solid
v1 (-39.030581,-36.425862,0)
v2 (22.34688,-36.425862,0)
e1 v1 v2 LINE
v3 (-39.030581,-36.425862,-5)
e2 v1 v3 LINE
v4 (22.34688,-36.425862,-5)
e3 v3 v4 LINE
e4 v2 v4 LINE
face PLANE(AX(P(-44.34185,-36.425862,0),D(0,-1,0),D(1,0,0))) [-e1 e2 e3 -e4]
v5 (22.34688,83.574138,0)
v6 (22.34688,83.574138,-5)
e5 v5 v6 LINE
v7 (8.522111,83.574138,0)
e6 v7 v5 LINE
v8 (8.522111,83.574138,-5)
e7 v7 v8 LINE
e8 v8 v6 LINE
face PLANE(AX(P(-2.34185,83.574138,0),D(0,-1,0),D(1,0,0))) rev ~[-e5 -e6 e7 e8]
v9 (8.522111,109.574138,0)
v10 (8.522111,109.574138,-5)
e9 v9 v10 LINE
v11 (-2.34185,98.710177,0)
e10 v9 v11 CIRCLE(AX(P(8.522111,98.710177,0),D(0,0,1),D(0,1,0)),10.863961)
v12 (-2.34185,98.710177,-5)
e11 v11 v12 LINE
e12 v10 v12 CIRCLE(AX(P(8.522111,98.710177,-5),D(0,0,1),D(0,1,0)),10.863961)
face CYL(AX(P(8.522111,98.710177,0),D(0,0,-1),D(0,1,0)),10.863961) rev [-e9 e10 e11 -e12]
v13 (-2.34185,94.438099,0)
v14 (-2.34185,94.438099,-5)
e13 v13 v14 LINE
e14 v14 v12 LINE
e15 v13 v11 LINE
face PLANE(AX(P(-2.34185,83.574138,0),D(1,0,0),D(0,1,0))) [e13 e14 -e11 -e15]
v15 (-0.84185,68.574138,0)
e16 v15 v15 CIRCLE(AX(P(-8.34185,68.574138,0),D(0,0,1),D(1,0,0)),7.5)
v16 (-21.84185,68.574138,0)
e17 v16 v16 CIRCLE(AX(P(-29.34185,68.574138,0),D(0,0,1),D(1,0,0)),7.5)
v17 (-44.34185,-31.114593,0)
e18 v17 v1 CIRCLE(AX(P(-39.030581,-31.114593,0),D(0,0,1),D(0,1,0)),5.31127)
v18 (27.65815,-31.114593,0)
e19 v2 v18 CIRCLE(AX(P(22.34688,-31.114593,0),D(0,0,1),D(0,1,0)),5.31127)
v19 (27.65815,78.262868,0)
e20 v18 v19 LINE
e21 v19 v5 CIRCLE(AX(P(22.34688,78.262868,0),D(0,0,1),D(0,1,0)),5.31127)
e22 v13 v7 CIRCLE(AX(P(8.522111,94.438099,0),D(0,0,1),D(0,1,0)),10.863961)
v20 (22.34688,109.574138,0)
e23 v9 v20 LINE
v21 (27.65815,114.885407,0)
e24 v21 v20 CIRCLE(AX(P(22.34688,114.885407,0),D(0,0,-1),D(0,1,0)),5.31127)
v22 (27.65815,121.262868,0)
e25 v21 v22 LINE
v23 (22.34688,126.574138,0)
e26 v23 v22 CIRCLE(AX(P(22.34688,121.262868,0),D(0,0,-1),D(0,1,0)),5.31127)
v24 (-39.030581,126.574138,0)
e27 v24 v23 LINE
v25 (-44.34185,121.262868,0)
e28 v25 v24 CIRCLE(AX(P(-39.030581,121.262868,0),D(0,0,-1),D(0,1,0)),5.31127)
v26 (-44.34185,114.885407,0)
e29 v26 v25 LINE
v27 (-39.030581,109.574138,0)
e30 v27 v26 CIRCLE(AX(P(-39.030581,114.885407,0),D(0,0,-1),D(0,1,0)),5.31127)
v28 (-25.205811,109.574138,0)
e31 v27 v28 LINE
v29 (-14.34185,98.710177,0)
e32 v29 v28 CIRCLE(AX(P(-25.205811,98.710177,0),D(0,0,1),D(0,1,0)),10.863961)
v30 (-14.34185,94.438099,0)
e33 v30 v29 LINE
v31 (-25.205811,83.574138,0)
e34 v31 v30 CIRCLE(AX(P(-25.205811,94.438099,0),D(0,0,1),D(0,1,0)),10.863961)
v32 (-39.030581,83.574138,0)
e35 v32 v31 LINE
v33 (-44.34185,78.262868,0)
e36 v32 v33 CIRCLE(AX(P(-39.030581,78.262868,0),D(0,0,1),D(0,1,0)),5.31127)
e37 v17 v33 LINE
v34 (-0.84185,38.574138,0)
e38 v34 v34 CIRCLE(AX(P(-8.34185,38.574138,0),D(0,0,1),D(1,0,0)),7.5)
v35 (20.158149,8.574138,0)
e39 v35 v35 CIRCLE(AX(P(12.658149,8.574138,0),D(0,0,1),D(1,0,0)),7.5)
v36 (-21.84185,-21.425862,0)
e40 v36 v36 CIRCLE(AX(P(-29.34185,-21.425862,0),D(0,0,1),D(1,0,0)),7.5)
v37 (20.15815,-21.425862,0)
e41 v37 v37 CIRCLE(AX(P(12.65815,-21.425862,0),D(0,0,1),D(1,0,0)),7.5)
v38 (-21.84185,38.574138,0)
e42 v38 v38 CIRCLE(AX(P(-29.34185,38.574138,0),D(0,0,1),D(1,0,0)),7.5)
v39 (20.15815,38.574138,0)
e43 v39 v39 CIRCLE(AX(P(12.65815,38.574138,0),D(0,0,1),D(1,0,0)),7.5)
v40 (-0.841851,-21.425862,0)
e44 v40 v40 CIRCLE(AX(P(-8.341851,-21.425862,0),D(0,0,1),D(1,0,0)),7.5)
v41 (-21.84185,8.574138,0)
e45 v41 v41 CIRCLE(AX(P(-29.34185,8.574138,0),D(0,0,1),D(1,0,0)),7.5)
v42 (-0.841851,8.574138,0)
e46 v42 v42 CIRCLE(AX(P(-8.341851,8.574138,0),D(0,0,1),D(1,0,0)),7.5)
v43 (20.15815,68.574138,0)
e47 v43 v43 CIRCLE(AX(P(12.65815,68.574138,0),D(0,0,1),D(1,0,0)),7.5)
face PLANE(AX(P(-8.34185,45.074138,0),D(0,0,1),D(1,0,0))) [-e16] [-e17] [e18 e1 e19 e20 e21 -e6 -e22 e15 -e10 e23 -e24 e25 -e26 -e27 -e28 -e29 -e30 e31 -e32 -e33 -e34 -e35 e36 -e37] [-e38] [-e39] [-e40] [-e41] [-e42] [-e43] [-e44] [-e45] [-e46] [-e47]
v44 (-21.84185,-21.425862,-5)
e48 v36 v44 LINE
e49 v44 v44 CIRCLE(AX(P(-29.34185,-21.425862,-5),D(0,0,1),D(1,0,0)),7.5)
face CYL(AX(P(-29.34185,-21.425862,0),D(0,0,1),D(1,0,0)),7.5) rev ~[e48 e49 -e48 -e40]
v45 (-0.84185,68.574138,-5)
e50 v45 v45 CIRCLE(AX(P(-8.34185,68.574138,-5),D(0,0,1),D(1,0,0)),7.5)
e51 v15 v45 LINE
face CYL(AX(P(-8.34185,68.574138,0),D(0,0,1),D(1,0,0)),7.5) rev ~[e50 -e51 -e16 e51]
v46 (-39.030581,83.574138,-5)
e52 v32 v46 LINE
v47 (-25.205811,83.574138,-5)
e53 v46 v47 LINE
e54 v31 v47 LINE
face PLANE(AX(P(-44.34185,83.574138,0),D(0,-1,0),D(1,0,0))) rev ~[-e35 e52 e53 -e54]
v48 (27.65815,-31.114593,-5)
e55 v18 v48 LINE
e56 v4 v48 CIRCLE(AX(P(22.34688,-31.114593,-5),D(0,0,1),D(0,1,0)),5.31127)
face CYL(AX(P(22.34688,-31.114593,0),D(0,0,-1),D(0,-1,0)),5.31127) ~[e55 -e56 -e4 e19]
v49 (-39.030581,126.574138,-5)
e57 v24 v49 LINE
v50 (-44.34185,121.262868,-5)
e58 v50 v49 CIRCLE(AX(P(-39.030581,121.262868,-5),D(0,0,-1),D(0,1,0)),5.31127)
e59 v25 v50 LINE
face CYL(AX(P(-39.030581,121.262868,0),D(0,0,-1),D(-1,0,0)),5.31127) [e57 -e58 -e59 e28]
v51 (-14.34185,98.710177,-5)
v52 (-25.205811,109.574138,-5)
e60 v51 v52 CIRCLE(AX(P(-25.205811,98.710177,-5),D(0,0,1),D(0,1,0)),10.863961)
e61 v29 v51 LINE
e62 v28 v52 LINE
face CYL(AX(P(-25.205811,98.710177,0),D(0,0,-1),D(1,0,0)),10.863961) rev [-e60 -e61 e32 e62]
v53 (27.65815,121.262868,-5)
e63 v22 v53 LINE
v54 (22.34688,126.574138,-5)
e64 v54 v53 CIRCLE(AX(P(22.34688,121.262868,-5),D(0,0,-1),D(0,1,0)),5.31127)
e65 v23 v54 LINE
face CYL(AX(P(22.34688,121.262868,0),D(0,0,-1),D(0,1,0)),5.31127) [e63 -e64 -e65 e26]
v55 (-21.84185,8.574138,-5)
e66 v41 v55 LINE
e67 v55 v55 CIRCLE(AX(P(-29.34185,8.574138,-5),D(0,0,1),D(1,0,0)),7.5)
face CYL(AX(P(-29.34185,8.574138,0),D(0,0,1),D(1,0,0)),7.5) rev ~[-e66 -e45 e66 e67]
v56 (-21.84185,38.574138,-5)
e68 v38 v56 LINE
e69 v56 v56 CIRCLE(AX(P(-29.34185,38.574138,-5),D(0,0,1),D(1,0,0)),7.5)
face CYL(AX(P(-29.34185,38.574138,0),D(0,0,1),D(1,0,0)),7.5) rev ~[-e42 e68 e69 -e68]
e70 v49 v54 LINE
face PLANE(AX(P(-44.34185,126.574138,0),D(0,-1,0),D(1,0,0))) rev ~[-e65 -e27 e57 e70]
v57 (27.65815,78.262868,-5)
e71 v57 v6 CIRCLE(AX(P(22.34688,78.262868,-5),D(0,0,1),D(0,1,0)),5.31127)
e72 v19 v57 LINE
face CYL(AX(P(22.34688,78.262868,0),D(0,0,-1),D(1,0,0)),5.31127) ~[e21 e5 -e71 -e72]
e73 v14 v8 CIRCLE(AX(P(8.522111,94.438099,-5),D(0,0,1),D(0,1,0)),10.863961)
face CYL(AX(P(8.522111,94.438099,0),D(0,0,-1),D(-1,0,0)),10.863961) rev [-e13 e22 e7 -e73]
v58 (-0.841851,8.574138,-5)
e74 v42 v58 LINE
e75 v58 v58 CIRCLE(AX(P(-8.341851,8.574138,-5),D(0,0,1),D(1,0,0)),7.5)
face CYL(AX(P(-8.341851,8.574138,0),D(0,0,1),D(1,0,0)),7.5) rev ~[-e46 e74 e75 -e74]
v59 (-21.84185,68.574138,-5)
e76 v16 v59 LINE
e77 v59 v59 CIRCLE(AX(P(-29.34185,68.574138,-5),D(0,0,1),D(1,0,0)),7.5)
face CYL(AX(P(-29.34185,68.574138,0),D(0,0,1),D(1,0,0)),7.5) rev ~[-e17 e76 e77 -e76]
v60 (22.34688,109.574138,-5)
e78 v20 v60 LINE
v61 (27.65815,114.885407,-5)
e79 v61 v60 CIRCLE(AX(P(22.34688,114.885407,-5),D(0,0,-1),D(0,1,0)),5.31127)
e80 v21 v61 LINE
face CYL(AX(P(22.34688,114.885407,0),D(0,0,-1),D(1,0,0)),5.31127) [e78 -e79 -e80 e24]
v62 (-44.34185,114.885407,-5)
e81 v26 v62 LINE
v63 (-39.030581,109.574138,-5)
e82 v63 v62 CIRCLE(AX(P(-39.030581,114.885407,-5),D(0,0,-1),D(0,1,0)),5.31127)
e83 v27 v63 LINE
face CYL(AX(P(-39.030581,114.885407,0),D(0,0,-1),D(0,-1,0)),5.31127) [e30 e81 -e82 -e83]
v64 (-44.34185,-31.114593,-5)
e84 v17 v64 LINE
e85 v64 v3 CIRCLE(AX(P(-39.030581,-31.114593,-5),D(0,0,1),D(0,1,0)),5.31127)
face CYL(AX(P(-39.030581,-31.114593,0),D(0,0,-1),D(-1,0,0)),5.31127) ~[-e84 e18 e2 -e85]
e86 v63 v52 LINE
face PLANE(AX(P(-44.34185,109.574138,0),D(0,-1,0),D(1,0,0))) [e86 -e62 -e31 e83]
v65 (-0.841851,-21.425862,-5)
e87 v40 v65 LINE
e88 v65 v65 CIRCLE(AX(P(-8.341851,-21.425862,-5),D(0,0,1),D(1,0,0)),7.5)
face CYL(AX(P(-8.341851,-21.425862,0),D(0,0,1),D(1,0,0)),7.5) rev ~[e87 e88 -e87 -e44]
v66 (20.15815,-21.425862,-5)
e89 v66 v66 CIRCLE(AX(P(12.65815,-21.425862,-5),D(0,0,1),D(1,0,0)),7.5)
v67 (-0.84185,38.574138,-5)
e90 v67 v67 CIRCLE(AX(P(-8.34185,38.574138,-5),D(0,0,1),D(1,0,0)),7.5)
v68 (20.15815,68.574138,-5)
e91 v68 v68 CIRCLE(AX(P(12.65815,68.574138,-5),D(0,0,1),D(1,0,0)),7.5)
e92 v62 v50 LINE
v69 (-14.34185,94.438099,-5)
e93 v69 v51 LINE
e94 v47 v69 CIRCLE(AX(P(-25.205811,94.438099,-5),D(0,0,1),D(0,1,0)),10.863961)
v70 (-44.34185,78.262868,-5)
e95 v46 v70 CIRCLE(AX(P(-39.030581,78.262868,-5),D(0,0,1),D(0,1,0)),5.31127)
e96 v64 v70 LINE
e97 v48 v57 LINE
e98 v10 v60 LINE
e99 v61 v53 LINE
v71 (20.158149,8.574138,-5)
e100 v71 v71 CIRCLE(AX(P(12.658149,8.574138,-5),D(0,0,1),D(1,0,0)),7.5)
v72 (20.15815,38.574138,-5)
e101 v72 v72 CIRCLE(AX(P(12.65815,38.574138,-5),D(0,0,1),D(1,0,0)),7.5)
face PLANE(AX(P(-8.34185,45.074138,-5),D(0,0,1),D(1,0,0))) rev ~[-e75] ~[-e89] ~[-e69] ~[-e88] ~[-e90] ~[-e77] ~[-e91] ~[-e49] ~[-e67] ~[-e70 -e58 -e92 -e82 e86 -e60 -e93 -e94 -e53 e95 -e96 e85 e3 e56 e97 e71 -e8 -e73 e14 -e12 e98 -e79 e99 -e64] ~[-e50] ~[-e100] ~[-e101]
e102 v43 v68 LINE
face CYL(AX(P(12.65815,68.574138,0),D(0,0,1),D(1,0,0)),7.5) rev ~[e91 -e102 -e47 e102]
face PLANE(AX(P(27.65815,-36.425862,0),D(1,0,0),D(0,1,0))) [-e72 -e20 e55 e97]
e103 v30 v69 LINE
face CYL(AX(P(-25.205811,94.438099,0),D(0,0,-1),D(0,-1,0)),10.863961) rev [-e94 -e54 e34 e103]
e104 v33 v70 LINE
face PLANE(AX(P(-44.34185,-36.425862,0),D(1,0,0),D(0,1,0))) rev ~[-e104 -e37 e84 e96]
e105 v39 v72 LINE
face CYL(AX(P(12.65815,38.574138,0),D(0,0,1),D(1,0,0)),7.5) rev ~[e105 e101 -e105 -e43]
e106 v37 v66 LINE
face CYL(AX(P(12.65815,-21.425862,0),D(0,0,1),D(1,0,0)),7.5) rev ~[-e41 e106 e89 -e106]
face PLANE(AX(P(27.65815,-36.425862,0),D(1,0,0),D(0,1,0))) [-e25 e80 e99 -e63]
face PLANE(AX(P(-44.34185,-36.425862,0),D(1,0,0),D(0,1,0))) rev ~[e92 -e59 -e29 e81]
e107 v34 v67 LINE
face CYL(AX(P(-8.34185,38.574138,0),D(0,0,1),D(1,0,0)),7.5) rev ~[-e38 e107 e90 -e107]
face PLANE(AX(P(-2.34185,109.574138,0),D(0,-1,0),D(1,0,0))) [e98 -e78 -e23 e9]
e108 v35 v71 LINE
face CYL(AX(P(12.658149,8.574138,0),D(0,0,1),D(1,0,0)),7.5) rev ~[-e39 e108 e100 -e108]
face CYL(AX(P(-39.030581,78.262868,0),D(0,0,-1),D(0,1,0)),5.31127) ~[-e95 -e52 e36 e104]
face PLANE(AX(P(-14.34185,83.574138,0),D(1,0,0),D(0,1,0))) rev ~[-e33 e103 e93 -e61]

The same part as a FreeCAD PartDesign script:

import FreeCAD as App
import Part
import Sketcher
from FreeCAD import Vector
Q = App.Units.Quantity


def edges_at(feature, points):
    """Names of the edges that pass closest to the given points."""
    edges = feature.Shape.Edges
    near = lambda p: min(range(len(edges)), key=lambda i: edges[i].distToShape(Part.Vertex(*p))[0])
    return sorted({f"Edge{near(p) + 1}" for p in points})

doc = App.newDocument("Part")
params = doc.addObject("Spreadsheet::Sheet", "Params")
for row, (alias, value) in enumerate([
    ("sketch1_width", "72 mm"),
    ("sketch1_height", "163 mm"),
    ("pad1_length", "5 mm"),
    ("sketch2_diameter", "15 mm"),
    ("sketch2_width", "30 mm"),
    ("sketch2_height", "26 mm"),
    ("pocket1_length", "25 mm"),
    ("fillet_radius", "10.863961 mm"),
    ("fillet2_radius", "5.31127 mm"),
], start=1):
    params.set(f"A{row}", alias)
    params.set(f"B{row}", "=" + value)
    params.setAlias(f"B{row}", alias)

body = doc.addObject("PartDesign::Body", "Body")

# Sketch on XY plane
sketch1 = body.newObject("Sketcher::SketchObject", "Sketch")
sketch1.AttachmentSupport = (doc.getObject("XY_Plane"), [""])
sketch1.MapMode = "FlatFace"
sketch1.addGeometry([
    Part.LineSegment(Vector(-44, 127, 0), Vector(-44, -36, 0)),
    Part.LineSegment(Vector(-44, -36, 0), Vector(28, -36, 0)),
    Part.LineSegment(Vector(28, -36, 0), Vector(28, 127, 0)),
    Part.LineSegment(Vector(28, 127, 0), Vector(-44, 127, 0)),
], False)
sketch1.addConstraint([
    Sketcher.Constraint("Coincident", 0, 2, 1, 1),
    Sketcher.Constraint("Coincident", 1, 2, 2, 1),
    Sketcher.Constraint("Coincident", 2, 2, 3, 1),
    Sketcher.Constraint("Coincident", 3, 2, 0, 1),
    Sketcher.Constraint("Vertical", 0),
    Sketcher.Constraint("Horizontal", 1),
    Sketcher.Constraint("Vertical", 2),
    Sketcher.Constraint("Horizontal", 3),
    Sketcher.Constraint("DistanceX", 1, 1, 1, 2, Q("72 mm")),
    Sketcher.Constraint("DistanceY", 0, 2, 0, 1, Q("163 mm")),
    Sketcher.Constraint("DistanceX", 0, 2, -1, 1, Q("44.34185 mm")),
    Sketcher.Constraint("DistanceY", 0, 2, -1, 1, Q("36.425862 mm")),
])
sketch1.setExpression("Constraints[8]", "Params.sketch1_width")
sketch1.setExpression("Constraints[9]", "Params.sketch1_height")
pad1 = body.newObject("PartDesign::Pad", "Pad")
pad1.Profile = sketch1
pad1.setExpression("Length", "Params.pad1_length")
pad1.Reversed = True

# Sketch on XY plane
sketch2 = body.newObject("Sketcher::SketchObject", "Sketch001")
sketch2.AttachmentSupport = (doc.getObject("XY_Plane"), [""])
sketch2.MapMode = "FlatFace"
sketch2.addGeometry([
    Part.LineSegment(Vector(-2, 110, 0), Vector(-2, 84, 0)),  # 0
    Part.LineSegment(Vector(-2, 84, 0), Vector(28, 84, 0)),  # 1
    Part.LineSegment(Vector(28, 84, 0), Vector(28, 110, 0)),  # 2
    Part.LineSegment(Vector(28, 110, 0), Vector(-2, 110, 0)),  # 3
    Part.LineSegment(Vector(-44, 110, 0), Vector(-44, 84, 0)),  # 4
    Part.LineSegment(Vector(-44, 84, 0), Vector(-14, 84, 0)),  # 5
    Part.LineSegment(Vector(-14, 84, 0), Vector(-14, 110, 0)),  # 6
    Part.LineSegment(Vector(-14, 110, 0), Vector(-44, 110, 0)),  # 7
    Part.Circle(Vector(13, 69, 0), Vector(0, 0, 1), 8),  # 8
    Part.Circle(Vector(-29, 69, 0), Vector(0, 0, 1), 8),  # 9
    Part.Circle(Vector(-8, 39, 0), Vector(0, 0, 1), 8),  # 10
    Part.Circle(Vector(-29, -21, 0), Vector(0, 0, 1), 8),  # 11
    Part.Circle(Vector(13, -21, 0), Vector(0, 0, 1), 8),  # 12
    Part.Circle(Vector(13, 39, 0), Vector(0, 0, 1), 8),  # 13
    Part.Circle(Vector(-8, 69, 0), Vector(0, 0, 1), 8),  # 14
    Part.Circle(Vector(-29, 39, 0), Vector(0, 0, 1), 8),  # 15
    Part.Circle(Vector(-8, -21, 0), Vector(0, 0, 1), 8),  # 16
    Part.Circle(Vector(-29, 9, 0), Vector(0, 0, 1), 8),  # 17
    Part.Circle(Vector(13, 9, 0), Vector(0, 0, 1), 8),  # 18
    Part.Circle(Vector(-8, 9, 0), Vector(0, 0, 1), 8),  # 19
], False)
sketch2.addConstraint([
    Sketcher.Constraint("Coincident", 0, 2, 1, 1),
    Sketcher.Constraint("Coincident", 1, 2, 2, 1),
    Sketcher.Constraint("Coincident", 2, 2, 3, 1),
    Sketcher.Constraint("Coincident", 3, 2, 0, 1),
    Sketcher.Constraint("Coincident", 4, 2, 5, 1),
    Sketcher.Constraint("Coincident", 5, 2, 6, 1),
    Sketcher.Constraint("Coincident", 6, 2, 7, 1),
    Sketcher.Constraint("Coincident", 7, 2, 4, 1),
    Sketcher.Constraint("Vertical", 0),
    Sketcher.Constraint("Horizontal", 1),
    Sketcher.Constraint("Vertical", 2),
    Sketcher.Constraint("Horizontal", 3),
    Sketcher.Constraint("Vertical", 4),
    Sketcher.Constraint("Horizontal", 5),
    Sketcher.Constraint("Vertical", 6),
    Sketcher.Constraint("Horizontal", 7),
    Sketcher.Constraint("Equal", 8, 9),
    Sketcher.Constraint("Equal", 9, 10),
    Sketcher.Constraint("Equal", 10, 11),
    Sketcher.Constraint("Equal", 11, 12),
    Sketcher.Constraint("Equal", 12, 13),
    Sketcher.Constraint("Equal", 13, 14),
    Sketcher.Constraint("Equal", 14, 15),
    Sketcher.Constraint("Equal", 15, 16),
    Sketcher.Constraint("Equal", 16, 17),
    Sketcher.Constraint("Equal", 17, 18),
    Sketcher.Constraint("Equal", 18, 19),
    Sketcher.Constraint("Horizontal", 8, 3, 9, 3),
    Sketcher.Constraint("Horizontal", 11, 3, 12, 3),
    Sketcher.Constraint("Horizontal", 10, 3, 13, 3),
    Sketcher.Constraint("Horizontal", 9, 3, 14, 3),
    Sketcher.Constraint("Horizontal", 13, 3, 15, 3),
    Sketcher.Constraint("Horizontal", 12, 3, 16, 3),
    Sketcher.Constraint("Horizontal", 17, 3, 18, 3),
    Sketcher.Constraint("Horizontal", 18, 3, 19, 3),
    Sketcher.Constraint("Horizontal", 1, 2, 4, 2),
    Sketcher.Constraint("Horizontal", 3, 2, 6, 2),
    Sketcher.Constraint("Vertical", 9, 3, 11, 3),
    Sketcher.Constraint("Vertical", 8, 3, 12, 3),
    Sketcher.Constraint("Vertical", 12, 3, 13, 3),
    Sketcher.Constraint("Vertical", 10, 3, 14, 3),
    Sketcher.Constraint("Vertical", 11, 3, 15, 3),
    Sketcher.Constraint("Vertical", 14, 3, 16, 3),
    Sketcher.Constraint("Vertical", 15, 3, 17, 3),
    Sketcher.Constraint("Vertical", 13, 3, 18, 3),
    Sketcher.Constraint("Vertical", 16, 3, 19, 3),
    Sketcher.Constraint("Equal", 3, 5),
    Sketcher.Constraint("Diameter", 8, Q("15 mm")),
    Sketcher.Constraint("DistanceX", 1, 1, 1, 2, Q("30 mm")),
    Sketcher.Constraint("DistanceY", 0, 2, 0, 1, Q("26 mm")),
    Sketcher.Constraint("DistanceX", 9, 3, 8, 3, Q("42 mm")),
    Sketcher.Constraint("DistanceX", 10, 3, 8, 3, Q("21 mm")),
    Sketcher.Constraint("DistanceY", 10, 3, 8, 3, Q("30 mm")),
    Sketcher.Constraint("DistanceY", 11, 3, 10, 3, Q("60 mm")),
    Sketcher.Constraint("DistanceY", 11, 3, 17, 3, Q("30 mm")),
    Sketcher.Constraint("DistanceX", 14, 3, 0, 2, Q("6 mm")),
    Sketcher.Constraint("DistanceY", 14, 3, 0, 2, Q("15 mm")),
    Sketcher.Constraint("DistanceX", 4, 2, 9, 3, Q("15 mm")),
    Sketcher.Constraint("DistanceX", -1, 1, 8, 3, Q("12.65815 mm")),
    Sketcher.Constraint("DistanceY", -1, 1, 8, 3, Q("68.574138 mm")),
])
sketch2.setExpression("Constraints[47]", "Params.sketch2_diameter")
sketch2.setExpression("Constraints[48]", "Params.sketch2_width")
sketch2.setExpression("Constraints[49]", "Params.sketch2_height")
pocket1 = body.newObject("PartDesign::Pocket", "Pocket")
pocket1.Profile = sketch2
pocket1.setExpression("Length", "Params.pocket1_length")
doc.recompute()

fillet = body.newObject("PartDesign::Fillet", "Fillet")
fillet.Base = (pocket1, edges_at(pocket1, [
    (-2.342, 109.574, -2.5),
    (-2.342, 83.574, -2.5),
    (-14.342, 83.574, -2.5),
    (-14.342, 109.574, -2.5),
]))
fillet.setExpression("Radius", "Params.fillet_radius")
doc.recompute()

fillet2 = body.newObject("PartDesign::Fillet", "Fillet001")
fillet2.Base = (fillet, edges_at(fillet, [
    (27.658, 126.574, -2.5),
    (-44.342, 126.574, -2.5),
    (-44.342, 109.574, -2.5),
    (-44.342, 83.574, -2.5),
    (27.658, 109.574, -2.5),
    (27.658, 83.574, -2.5),
    (-44.342, -36.426, -2.5),
    (27.658, -36.426, -2.5),
]))
fillet2.setExpression("Radius", "Params.fillet2_radius")

doc.recompute()
